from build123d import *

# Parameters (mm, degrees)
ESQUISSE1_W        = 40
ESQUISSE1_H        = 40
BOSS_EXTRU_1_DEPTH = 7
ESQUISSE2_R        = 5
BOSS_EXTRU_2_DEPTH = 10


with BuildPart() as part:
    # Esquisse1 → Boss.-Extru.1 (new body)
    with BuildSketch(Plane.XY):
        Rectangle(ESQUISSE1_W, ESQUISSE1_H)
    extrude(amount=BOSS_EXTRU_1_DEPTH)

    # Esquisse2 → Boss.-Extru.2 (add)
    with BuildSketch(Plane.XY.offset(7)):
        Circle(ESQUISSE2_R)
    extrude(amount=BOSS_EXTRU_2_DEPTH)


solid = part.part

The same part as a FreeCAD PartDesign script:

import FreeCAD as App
import Part
import Sketcher
from FreeCAD import Vector


def add_polygon(sketch, points):
    """Adds a closed chain of lines whose ends are joined by coincident constraints."""
    first, n = sketch.GeometryCount, len(points)
    for a, b in zip(points, points[1:] + points[:1]):
        sketch.addGeometry(Part.LineSegment(App.Vector(*a, 0), App.Vector(*b, 0)), False)
    for i in range(n):
        sketch.addConstraint(Sketcher.Constraint("Coincident", first + i, 2, first + (i + 1) % n, 1))

doc = App.newDocument("Part")
params = doc.addObject("Spreadsheet::Sheet", "Params")
for row, (alias, value) in enumerate([
    ("sketch1_width", "40 mm"),
    ("pad1_length", "7 mm"),
    ("sketch2_diameter", "10 mm"),
    ("pad2_length", "10 mm"),
], start=1):
    params.set(f"A{row}", alias)
    params.set(f"B{row}", "=" + value)
    params.setAlias(f"B{row}", alias)

body = doc.addObject("PartDesign::Body", "Body")

sketch1 = body.newObject("Sketcher::SketchObject", "Sketch")
sketch1.AttachmentSupport = (doc.getObject("XY_Plane"), [""])
sketch1.MapMode = "FlatFace"
add_polygon(sketch1, [(-20, 20), (-20, -20), (20, -20), (20, 20)])
sketch1.addConstraint([
    Sketcher.Constraint("Vertical", 0),
    Sketcher.Constraint("Horizontal", 1),
    Sketcher.Constraint("Vertical", 2),
    Sketcher.Constraint("Horizontal", 3),
    Sketcher.Constraint("Symmetric", 0, 2, 2, 2, -1, 1),
    Sketcher.Constraint("Equal", 3, 0),
    Sketcher.Constraint("DistanceX", 1, 1, 1, 2, 40.0),
])
sketch1.setExpression("Constraints[10]", "Params.sketch1_width")
pad1 = body.newObject("PartDesign::Pad", "Pad")
pad1.Profile = sketch1
pad1.setExpression("Length", "Params.pad1_length")

sketch2 = body.newObject("Sketcher::SketchObject", "Sketch001")
sketch2.AttachmentSupport = (doc.getObject("XY_Plane"), [""])
sketch2.MapMode = "FlatFace"
sketch2.AttachmentOffset = App.Placement(Vector(0, 0, 7), App.Rotation())
sketch2.addGeometry(Part.Circle(Vector(0, 0, 0), Vector(0, 0, 1), 5), False)
sketch2.addConstraint([
    Sketcher.Constraint("Coincident", 0, 3, -1, 1),
    Sketcher.Constraint("Diameter", 0, 10.0),
])
sketch2.setExpression("Constraints[1]", "Params.sketch2_diameter")
pad2 = body.newObject("PartDesign::Pad", "Pad001")
pad2.Profile = sketch2
pad2.setExpression("Length", "Params.pad2_length")

doc.recompute()
